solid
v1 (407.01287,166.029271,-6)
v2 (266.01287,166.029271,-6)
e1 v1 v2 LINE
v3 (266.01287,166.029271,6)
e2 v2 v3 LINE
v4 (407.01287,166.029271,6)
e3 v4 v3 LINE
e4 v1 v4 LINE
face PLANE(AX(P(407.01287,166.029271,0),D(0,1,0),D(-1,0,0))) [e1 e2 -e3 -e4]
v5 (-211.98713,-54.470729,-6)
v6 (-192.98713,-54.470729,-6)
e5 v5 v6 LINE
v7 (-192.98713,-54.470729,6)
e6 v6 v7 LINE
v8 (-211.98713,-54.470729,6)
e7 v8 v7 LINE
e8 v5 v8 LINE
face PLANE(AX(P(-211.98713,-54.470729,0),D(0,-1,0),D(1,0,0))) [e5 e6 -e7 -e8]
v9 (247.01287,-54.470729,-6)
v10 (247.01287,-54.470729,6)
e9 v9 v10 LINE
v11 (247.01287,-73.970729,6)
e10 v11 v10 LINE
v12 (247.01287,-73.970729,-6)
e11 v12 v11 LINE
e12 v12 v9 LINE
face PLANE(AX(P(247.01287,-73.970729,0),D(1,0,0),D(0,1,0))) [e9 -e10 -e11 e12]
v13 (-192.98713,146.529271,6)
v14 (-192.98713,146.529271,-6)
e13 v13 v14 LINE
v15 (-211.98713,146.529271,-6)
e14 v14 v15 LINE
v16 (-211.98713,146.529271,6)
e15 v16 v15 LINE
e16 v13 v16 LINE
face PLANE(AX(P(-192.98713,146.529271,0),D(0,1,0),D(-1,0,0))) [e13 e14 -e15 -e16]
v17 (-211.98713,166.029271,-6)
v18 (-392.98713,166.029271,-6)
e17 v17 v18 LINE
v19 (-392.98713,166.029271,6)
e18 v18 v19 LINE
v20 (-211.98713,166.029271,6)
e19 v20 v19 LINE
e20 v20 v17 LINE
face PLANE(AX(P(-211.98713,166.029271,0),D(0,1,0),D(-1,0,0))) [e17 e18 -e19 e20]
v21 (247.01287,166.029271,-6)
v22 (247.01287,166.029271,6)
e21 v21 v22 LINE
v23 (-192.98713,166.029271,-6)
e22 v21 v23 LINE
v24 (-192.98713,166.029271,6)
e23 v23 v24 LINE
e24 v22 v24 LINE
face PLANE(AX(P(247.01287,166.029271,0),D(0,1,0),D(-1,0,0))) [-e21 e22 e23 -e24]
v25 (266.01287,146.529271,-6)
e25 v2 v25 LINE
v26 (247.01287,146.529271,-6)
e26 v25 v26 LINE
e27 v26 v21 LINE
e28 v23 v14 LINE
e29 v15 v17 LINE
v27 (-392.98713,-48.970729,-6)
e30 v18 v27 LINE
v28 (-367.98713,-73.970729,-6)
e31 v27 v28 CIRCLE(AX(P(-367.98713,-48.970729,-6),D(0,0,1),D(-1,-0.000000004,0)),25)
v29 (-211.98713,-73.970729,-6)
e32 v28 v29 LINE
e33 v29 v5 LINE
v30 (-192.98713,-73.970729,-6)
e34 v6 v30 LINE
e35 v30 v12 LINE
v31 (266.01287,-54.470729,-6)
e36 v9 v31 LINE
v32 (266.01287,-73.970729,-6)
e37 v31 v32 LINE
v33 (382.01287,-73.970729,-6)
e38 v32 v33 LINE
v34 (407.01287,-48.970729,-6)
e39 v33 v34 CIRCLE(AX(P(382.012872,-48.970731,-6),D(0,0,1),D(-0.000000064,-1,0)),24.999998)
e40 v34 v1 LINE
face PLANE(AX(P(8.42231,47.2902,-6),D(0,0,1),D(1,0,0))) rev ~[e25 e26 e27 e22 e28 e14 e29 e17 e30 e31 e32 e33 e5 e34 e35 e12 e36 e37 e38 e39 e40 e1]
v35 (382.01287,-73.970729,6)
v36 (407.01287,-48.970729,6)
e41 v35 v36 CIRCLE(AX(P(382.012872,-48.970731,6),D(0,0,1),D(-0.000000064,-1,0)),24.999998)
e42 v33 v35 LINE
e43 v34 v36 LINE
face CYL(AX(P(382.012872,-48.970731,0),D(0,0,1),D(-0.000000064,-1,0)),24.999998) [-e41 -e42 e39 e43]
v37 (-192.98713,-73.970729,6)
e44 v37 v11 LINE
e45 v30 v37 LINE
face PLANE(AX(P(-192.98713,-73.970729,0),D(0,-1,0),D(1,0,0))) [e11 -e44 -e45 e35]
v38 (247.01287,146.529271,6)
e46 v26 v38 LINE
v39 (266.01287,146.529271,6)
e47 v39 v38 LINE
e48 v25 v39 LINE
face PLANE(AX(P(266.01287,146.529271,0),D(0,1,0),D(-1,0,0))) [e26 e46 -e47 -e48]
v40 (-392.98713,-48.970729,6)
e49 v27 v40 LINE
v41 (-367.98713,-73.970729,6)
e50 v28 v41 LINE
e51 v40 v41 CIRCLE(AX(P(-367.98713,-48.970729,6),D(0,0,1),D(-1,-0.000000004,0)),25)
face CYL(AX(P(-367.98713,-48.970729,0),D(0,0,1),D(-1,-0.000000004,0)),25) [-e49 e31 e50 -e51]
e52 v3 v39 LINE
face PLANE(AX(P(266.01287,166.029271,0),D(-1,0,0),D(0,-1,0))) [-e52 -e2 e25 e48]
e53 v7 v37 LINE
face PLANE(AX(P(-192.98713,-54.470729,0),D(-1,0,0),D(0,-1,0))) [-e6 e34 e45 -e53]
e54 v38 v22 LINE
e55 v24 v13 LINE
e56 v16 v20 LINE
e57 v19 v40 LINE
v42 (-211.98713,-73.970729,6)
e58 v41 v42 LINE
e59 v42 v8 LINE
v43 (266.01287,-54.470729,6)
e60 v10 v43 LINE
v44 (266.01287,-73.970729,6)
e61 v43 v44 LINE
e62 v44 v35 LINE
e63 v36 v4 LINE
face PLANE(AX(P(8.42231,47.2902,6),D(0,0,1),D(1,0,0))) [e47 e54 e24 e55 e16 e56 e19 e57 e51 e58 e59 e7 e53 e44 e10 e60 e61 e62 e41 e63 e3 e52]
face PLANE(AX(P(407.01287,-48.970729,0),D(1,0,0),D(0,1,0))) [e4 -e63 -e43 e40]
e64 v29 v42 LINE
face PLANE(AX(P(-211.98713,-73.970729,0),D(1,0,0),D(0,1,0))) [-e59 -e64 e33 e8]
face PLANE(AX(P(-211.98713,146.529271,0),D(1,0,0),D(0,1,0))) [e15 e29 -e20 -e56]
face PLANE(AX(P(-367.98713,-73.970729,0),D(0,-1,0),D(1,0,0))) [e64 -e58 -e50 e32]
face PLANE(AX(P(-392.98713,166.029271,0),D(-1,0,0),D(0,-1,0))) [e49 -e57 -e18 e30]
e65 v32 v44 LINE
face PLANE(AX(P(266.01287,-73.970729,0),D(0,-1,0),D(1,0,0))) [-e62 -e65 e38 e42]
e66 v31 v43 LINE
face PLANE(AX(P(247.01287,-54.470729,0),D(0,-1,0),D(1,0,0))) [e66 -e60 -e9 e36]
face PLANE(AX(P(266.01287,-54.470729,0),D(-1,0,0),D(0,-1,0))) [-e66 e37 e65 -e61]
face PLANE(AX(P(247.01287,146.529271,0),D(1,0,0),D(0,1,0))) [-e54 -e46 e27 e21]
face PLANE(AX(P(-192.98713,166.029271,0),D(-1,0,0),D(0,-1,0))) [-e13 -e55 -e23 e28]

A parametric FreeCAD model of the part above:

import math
import FreeCAD as App
import Part
import Sketcher

V = App.Vector
Q = App.Units.Quantity

doc = App.newDocument("Part")
body = doc.addObject("PartDesign::Body", "Body")

# Sketch on XY plane
sketch1 = doc.addObject("Sketcher::SketchObject", "Sketch")
body.addObject(sketch1)
sketch1.AttachmentSupport = (doc.XY_Plane, [""])
sketch1.MapMode = "FlatFace"
sketch1.addGeometry(Part.LineSegment(V(-212, 166, 0), V(-393, 166, 0)), False)
sketch1.addGeometry(Part.LineSegment(V(-393, 166, 0), V(-393, -49, 0)), False)
sketch1.addGeometry(Part.ArcOfCircle(Part.Circle(V(-368, -49, 0), V(0, 0, 1), 25), math.radians(-180), math.radians(-90)), False)
sketch1.addGeometry(Part.LineSegment(V(-368, -74, 0), V(-212, -74, 0)), False)
sketch1.addGeometry(Part.LineSegment(V(-212, -74, 0), V(-212, -54, 0)), False)
sketch1.addGeometry(Part.LineSegment(V(-212, -54, 0), V(-193, -54, 0)), False)
sketch1.addGeometry(Part.LineSegment(V(-193, -54, 0), V(-193, -74, 0)), False)
sketch1.addGeometry(Part.LineSegment(V(-193, -74, 0), V(247, -74, 0)), False)
sketch1.addGeometry(Part.LineSegment(V(247, -74, 0), V(247, -54, 0)), False)
sketch1.addGeometry(Part.LineSegment(V(247, -54, 0), V(266, -54, 0)), False)
sketch1.addGeometry(Part.LineSegment(V(266, -54, 0), V(266, -74, 0)), False)
sketch1.addGeometry(Part.LineSegment(V(266, -74, 0), V(382, -74, 0)), False)
sketch1.addGeometry(Part.ArcOfCircle(Part.Circle(V(382, -49, 0), V(0, 0, 1), 25), math.radians(-90), math.radians(0)), False)
sketch1.addGeometry(Part.LineSegment(V(407, -49, 0), V(407, 166, 0)), False)
sketch1.addGeometry(Part.LineSegment(V(407, 166, 0), V(266, 166, 0)), False)
sketch1.addGeometry(Part.LineSegment(V(266, 166, 0), V(266, 147, 0)), False)
sketch1.addGeometry(Part.LineSegment(V(266, 147, 0), V(247, 147, 0)), False)
sketch1.addGeometry(Part.LineSegment(V(247, 147, 0), V(247, 166, 0)), False)
sketch1.addGeometry(Part.LineSegment(V(247, 166, 0), V(-193, 166, 0)), False)
sketch1.addGeometry(Part.LineSegment(V(-193, 166, 0), V(-193, 147, 0)), False)
sketch1.addGeometry(Part.LineSegment(V(-193, 147, 0), V(-212, 147, 0)), False)
sketch1.addGeometry(Part.LineSegment(V(-212, 147, 0), V(-212, 166, 0)), False)
sketch1.addConstraint(Sketcher.Constraint("Coincident", 0, 2, 1, 1))
sketch1.addConstraint(Sketcher.Constraint("Tangent", 1, 2, 2, 1))
sketch1.addConstraint(Sketcher.Constraint("Tangent", 2, 2, 3, 1))
sketch1.addConstraint(Sketcher.Constraint("Coincident", 3, 2, 4, 1))
sketch1.addConstraint(Sketcher.Constraint("Coincident", 4, 2, 5, 1))
sketch1.addConstraint(Sketcher.Constraint("Coincident", 5, 2, 6, 1))
sketch1.addConstraint(Sketcher.Constraint("Coincident", 6, 2, 7, 1))
sketch1.addConstraint(Sketcher.Constraint("Coincident", 7, 2, 8, 1))
sketch1.addConstraint(Sketcher.Constraint("Coincident", 8, 2, 9, 1))
sketch1.addConstraint(Sketcher.Constraint("Coincident", 9, 2, 10, 1))
sketch1.addConstraint(Sketcher.Constraint("Coincident", 10, 2, 11, 1))
sketch1.addConstraint(Sketcher.Constraint("Tangent", 11, 2, 12, 1))
sketch1.addConstraint(Sketcher.Constraint("Tangent", 12, 2, 13, 1))
sketch1.addConstraint(Sketcher.Constraint("Coincident", 13, 2, 14, 1))
sketch1.addConstraint(Sketcher.Constraint("Coincident", 14, 2, 15, 1))
sketch1.addConstraint(Sketcher.Constraint("Coincident", 15, 2, 16, 1))
sketch1.addConstraint(Sketcher.Constraint("Coincident", 16, 2, 17, 1))
sketch1.addConstraint(Sketcher.Constraint("Coincident", 17, 2, 18, 1))
sketch1.addConstraint(Sketcher.Constraint("Coincident", 18, 2, 19, 1))
sketch1.addConstraint(Sketcher.Constraint("Coincident", 19, 2, 20, 1))
sketch1.addConstraint(Sketcher.Constraint("Coincident", 20, 2, 21, 1))
sketch1.addConstraint(Sketcher.Constraint("Coincident", 21, 2, 0, 1))
sketch1.addConstraint(Sketcher.Constraint("Horizontal", 0))
sketch1.addConstraint(Sketcher.Constraint("Vertical", 1))
sketch1.addConstraint(Sketcher.Constraint("Horizontal", 3))
sketch1.addConstraint(Sketcher.Constraint("Vertical", 4))
sketch1.addConstraint(Sketcher.Constraint("Horizontal", 5))
sketch1.addConstraint(Sketcher.Constraint("Vertical", 6))
sketch1.addConstraint(Sketcher.Constraint("Horizontal", 7))
sketch1.addConstraint(Sketcher.Constraint("Vertical", 8))
sketch1.addConstraint(Sketcher.Constraint("Horizontal", 9))
sketch1.addConstraint(Sketcher.Constraint("Vertical", 10))
sketch1.addConstraint(Sketcher.Constraint("Horizontal", 11))
sketch1.addConstraint(Sketcher.Constraint("Vertical", 13))
sketch1.addConstraint(Sketcher.Constraint("Horizontal", 14))
sketch1.addConstraint(Sketcher.Constraint("Vertical", 15))
sketch1.addConstraint(Sketcher.Constraint("Horizontal", 16))
sketch1.addConstraint(Sketcher.Constraint("Vertical", 17))
sketch1.addConstraint(Sketcher.Constraint("Horizontal", 18))
sketch1.addConstraint(Sketcher.Constraint("Vertical", 19))
sketch1.addConstraint(Sketcher.Constraint("Horizontal", 20))
sketch1.addConstraint(Sketcher.Constraint("Vertical", 21))
sketch1.addConstraint(Sketcher.Constraint("Equal", 2, 12))
sketch1.addConstraint(Sketcher.Constraint("Horizontal", 2, 3, 12, 3))
sketch1.addConstraint(Sketcher.Constraint("Horizontal", 3, 2, 6, 2))
sketch1.addConstraint(Sketcher.Constraint("Horizontal", 5, 2, 8, 2))
sketch1.addConstraint(Sketcher.Constraint("Horizontal", 0, 2, 13, 2))
sketch1.addConstraint(Sketcher.Constraint("Horizontal", 14, 2, 17, 2))
sketch1.addConstraint(Sketcher.Constraint("Horizontal", 16, 2, 19, 2))
sketch1.addConstraint(Sketcher.Constraint("Vertical", 10, 2, 14, 2))
sketch1.addConstraint(Sketcher.Constraint("Vertical", 8, 2, 16, 2))
sketch1.addConstraint(Sketcher.Constraint("Vertical", 6, 2, 18, 2))
sketch1.addConstraint(Sketcher.Constraint("Vertical", 4, 2, 20, 2))
sketch1.addConstraint(Sketcher.Constraint("Equal", 5, 9))
sketch1.addConstraint(Sketcher.Constraint("Equal", 10, 15))
sketch1.addConstraint(Sketcher.Constraint("Radius", 2, Q("25 mm")))
sketch1.addConstraint(Sketcher.Constraint("DistanceX", 0, 2, 0, 1, Q("181 mm")))
sketch1.addConstraint(Sketcher.Constraint("DistanceX", 5, 1, 5, 2, Q("19 mm")))
sketch1.addConstraint(Sketcher.Constraint("DistanceX", 7, 1, 7, 2, Q("440 mm")))
sketch1.addConstraint(Sketcher.Constraint("DistanceX", 11, 1, 11, 2, Q("116 mm")))
sketch1.addConstraint(Sketcher.Constraint("DistanceY", 1, 2, 1, 1, Q("215 mm")))
sketch1.addConstraint(Sketcher.Constraint("DistanceY", 4, 1, 4, 2, Q("19.5 mm")))
sketch1.addConstraint(Sketcher.Constraint("DistanceX", 2, 3, -1, 1, Q("367.98713 mm")))
sketch1.addConstraint(Sketcher.Constraint("DistanceY", 2, 3, -1, 1, Q("48.970729 mm")))
pad1 = doc.addObject("PartDesign::Pad", "Pad")
body.addObject(pad1)
pad1.Profile = sketch1
pad1.Length = 12
pad1.Midplane = True

doc.recompute()
